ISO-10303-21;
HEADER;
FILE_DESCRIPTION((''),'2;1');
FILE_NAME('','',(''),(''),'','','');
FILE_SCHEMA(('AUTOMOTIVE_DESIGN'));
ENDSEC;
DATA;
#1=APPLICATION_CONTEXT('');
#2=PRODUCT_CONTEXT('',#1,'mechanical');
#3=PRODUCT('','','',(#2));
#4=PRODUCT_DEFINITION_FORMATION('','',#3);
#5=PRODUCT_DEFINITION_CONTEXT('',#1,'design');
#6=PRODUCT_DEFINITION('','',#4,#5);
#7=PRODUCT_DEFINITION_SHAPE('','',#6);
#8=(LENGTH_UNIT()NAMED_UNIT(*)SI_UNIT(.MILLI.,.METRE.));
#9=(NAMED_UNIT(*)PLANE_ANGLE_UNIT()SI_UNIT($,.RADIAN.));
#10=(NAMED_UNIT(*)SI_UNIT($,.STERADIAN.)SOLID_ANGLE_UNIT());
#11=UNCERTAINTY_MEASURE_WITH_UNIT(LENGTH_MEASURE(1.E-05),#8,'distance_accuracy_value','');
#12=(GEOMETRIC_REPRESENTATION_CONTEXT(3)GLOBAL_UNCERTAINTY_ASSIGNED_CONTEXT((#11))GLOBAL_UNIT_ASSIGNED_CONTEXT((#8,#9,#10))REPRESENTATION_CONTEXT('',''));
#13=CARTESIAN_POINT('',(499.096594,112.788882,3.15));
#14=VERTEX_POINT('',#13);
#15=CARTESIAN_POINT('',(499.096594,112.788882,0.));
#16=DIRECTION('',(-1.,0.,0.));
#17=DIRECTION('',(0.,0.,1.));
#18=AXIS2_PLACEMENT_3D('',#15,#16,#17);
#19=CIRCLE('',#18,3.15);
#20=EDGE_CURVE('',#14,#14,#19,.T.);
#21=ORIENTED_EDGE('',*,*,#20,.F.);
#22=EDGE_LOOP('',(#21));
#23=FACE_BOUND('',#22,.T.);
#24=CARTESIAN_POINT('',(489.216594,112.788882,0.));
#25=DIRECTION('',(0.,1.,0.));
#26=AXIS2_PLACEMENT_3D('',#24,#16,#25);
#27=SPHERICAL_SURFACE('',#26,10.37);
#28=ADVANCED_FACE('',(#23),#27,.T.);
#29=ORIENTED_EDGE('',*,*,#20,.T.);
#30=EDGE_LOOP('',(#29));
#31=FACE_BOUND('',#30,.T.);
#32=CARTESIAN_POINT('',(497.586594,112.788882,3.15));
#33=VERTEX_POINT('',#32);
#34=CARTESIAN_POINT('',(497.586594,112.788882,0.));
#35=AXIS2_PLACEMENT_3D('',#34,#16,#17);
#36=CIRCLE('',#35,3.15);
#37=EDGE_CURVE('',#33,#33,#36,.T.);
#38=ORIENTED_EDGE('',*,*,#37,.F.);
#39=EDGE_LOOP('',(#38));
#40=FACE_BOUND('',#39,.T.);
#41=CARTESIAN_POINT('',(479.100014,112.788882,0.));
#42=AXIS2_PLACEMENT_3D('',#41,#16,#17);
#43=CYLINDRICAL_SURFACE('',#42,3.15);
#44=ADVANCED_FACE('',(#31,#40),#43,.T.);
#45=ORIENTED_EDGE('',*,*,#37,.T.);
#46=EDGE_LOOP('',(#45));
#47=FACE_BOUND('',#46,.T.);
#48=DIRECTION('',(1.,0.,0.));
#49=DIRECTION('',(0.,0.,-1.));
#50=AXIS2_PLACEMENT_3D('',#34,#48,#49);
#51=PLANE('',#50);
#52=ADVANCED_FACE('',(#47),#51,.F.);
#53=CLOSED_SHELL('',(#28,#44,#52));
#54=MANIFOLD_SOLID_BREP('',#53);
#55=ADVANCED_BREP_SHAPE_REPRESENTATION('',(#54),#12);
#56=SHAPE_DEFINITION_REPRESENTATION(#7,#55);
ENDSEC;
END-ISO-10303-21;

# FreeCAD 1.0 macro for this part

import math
import FreeCAD as App
import Part
import Sketcher
Q = App.Units.Quantity

doc = App.newDocument("Part")
body = doc.addObject("PartDesign::Body", "Body")

sketch1 = doc.addObject("Sketcher::SketchObject", "Sketch")
body.addObject(sketch1)
sketch1.AttachmentSupport = (doc.XY_Plane, [""])
sketch1.MapMode = "FlatFace"
sketch1.addGeometry(Part.LineSegment(App.Vector(497.6, 115.9, 0), App.Vector(497.6, 112.8, 0)), False)
sketch1.addGeometry(Part.LineSegment(App.Vector(497.6, 112.8, 0), App.Vector(499.6, 112.8, 0)), False)
sketch1.addGeometry(Part.ArcOfCircle(Part.Circle(App.Vector(489.2, 112.8, 0), App.Vector(0, 0, 1), 10.4), math.radians(0), math.radians(17.68)), False)
sketch1.addGeometry(Part.LineSegment(App.Vector(499.1, 115.9, 0), App.Vector(497.6, 115.9, 0)), False)
sketch1.addGeometry(Part.LineSegment(App.Vector(489.2, 112.8, 0), App.Vector(499.6, 112.8, 0)), True)
sketch1.addConstraint(Sketcher.Constraint("Coincident", 0, 2, 1, 1))
sketch1.addConstraint(Sketcher.Constraint("Coincident", 1, 2, 2, 1))
sketch1.addConstraint(Sketcher.Constraint("Coincident", 2, 2, 3, 1))
sketch1.addConstraint(Sketcher.Constraint("Coincident", 3, 2, 0, 1))
sketch1.addConstraint(Sketcher.Constraint("Vertical", 0))
sketch1.addConstraint(Sketcher.Constraint("Horizontal", 1))
sketch1.addConstraint(Sketcher.Constraint("Horizontal", 3))
sketch1.addConstraint(Sketcher.Constraint("Horizontal", 4))
sketch1.addConstraint(Sketcher.Constraint("Coincident", 4, 1, 2, 3))
sketch1.addConstraint(Sketcher.Constraint("Coincident", 4, 2, 1, 2))
sketch1.addConstraint(Sketcher.Constraint("DistanceX", 1, 1, 1, 2, Q("2 mm")))
sketch1.addConstraint(Sketcher.Constraint("Radius", 2, Q("10.37 mm")))
sketch1.addConstraint(Sketcher.Constraint("DistanceX", 3, 2, 3, 1, Q("1.51 mm")))
sketch1.addConstraint(Sketcher.Constraint("DistanceX", -1, 1, 2, 3, Q("489.216594 mm")))
sketch1.addConstraint(Sketcher.Constraint("DistanceY", -1, 1, 2, 3, Q("112.788882 mm")))
revolution = doc.addObject("PartDesign::Revolution", "Revolution")
body.addObject(revolution)
revolution.Profile = sketch1
revolution.ReferenceAxis = (sketch1, ["Axis0"])
revolution.Angle = 360

doc.recompute()
